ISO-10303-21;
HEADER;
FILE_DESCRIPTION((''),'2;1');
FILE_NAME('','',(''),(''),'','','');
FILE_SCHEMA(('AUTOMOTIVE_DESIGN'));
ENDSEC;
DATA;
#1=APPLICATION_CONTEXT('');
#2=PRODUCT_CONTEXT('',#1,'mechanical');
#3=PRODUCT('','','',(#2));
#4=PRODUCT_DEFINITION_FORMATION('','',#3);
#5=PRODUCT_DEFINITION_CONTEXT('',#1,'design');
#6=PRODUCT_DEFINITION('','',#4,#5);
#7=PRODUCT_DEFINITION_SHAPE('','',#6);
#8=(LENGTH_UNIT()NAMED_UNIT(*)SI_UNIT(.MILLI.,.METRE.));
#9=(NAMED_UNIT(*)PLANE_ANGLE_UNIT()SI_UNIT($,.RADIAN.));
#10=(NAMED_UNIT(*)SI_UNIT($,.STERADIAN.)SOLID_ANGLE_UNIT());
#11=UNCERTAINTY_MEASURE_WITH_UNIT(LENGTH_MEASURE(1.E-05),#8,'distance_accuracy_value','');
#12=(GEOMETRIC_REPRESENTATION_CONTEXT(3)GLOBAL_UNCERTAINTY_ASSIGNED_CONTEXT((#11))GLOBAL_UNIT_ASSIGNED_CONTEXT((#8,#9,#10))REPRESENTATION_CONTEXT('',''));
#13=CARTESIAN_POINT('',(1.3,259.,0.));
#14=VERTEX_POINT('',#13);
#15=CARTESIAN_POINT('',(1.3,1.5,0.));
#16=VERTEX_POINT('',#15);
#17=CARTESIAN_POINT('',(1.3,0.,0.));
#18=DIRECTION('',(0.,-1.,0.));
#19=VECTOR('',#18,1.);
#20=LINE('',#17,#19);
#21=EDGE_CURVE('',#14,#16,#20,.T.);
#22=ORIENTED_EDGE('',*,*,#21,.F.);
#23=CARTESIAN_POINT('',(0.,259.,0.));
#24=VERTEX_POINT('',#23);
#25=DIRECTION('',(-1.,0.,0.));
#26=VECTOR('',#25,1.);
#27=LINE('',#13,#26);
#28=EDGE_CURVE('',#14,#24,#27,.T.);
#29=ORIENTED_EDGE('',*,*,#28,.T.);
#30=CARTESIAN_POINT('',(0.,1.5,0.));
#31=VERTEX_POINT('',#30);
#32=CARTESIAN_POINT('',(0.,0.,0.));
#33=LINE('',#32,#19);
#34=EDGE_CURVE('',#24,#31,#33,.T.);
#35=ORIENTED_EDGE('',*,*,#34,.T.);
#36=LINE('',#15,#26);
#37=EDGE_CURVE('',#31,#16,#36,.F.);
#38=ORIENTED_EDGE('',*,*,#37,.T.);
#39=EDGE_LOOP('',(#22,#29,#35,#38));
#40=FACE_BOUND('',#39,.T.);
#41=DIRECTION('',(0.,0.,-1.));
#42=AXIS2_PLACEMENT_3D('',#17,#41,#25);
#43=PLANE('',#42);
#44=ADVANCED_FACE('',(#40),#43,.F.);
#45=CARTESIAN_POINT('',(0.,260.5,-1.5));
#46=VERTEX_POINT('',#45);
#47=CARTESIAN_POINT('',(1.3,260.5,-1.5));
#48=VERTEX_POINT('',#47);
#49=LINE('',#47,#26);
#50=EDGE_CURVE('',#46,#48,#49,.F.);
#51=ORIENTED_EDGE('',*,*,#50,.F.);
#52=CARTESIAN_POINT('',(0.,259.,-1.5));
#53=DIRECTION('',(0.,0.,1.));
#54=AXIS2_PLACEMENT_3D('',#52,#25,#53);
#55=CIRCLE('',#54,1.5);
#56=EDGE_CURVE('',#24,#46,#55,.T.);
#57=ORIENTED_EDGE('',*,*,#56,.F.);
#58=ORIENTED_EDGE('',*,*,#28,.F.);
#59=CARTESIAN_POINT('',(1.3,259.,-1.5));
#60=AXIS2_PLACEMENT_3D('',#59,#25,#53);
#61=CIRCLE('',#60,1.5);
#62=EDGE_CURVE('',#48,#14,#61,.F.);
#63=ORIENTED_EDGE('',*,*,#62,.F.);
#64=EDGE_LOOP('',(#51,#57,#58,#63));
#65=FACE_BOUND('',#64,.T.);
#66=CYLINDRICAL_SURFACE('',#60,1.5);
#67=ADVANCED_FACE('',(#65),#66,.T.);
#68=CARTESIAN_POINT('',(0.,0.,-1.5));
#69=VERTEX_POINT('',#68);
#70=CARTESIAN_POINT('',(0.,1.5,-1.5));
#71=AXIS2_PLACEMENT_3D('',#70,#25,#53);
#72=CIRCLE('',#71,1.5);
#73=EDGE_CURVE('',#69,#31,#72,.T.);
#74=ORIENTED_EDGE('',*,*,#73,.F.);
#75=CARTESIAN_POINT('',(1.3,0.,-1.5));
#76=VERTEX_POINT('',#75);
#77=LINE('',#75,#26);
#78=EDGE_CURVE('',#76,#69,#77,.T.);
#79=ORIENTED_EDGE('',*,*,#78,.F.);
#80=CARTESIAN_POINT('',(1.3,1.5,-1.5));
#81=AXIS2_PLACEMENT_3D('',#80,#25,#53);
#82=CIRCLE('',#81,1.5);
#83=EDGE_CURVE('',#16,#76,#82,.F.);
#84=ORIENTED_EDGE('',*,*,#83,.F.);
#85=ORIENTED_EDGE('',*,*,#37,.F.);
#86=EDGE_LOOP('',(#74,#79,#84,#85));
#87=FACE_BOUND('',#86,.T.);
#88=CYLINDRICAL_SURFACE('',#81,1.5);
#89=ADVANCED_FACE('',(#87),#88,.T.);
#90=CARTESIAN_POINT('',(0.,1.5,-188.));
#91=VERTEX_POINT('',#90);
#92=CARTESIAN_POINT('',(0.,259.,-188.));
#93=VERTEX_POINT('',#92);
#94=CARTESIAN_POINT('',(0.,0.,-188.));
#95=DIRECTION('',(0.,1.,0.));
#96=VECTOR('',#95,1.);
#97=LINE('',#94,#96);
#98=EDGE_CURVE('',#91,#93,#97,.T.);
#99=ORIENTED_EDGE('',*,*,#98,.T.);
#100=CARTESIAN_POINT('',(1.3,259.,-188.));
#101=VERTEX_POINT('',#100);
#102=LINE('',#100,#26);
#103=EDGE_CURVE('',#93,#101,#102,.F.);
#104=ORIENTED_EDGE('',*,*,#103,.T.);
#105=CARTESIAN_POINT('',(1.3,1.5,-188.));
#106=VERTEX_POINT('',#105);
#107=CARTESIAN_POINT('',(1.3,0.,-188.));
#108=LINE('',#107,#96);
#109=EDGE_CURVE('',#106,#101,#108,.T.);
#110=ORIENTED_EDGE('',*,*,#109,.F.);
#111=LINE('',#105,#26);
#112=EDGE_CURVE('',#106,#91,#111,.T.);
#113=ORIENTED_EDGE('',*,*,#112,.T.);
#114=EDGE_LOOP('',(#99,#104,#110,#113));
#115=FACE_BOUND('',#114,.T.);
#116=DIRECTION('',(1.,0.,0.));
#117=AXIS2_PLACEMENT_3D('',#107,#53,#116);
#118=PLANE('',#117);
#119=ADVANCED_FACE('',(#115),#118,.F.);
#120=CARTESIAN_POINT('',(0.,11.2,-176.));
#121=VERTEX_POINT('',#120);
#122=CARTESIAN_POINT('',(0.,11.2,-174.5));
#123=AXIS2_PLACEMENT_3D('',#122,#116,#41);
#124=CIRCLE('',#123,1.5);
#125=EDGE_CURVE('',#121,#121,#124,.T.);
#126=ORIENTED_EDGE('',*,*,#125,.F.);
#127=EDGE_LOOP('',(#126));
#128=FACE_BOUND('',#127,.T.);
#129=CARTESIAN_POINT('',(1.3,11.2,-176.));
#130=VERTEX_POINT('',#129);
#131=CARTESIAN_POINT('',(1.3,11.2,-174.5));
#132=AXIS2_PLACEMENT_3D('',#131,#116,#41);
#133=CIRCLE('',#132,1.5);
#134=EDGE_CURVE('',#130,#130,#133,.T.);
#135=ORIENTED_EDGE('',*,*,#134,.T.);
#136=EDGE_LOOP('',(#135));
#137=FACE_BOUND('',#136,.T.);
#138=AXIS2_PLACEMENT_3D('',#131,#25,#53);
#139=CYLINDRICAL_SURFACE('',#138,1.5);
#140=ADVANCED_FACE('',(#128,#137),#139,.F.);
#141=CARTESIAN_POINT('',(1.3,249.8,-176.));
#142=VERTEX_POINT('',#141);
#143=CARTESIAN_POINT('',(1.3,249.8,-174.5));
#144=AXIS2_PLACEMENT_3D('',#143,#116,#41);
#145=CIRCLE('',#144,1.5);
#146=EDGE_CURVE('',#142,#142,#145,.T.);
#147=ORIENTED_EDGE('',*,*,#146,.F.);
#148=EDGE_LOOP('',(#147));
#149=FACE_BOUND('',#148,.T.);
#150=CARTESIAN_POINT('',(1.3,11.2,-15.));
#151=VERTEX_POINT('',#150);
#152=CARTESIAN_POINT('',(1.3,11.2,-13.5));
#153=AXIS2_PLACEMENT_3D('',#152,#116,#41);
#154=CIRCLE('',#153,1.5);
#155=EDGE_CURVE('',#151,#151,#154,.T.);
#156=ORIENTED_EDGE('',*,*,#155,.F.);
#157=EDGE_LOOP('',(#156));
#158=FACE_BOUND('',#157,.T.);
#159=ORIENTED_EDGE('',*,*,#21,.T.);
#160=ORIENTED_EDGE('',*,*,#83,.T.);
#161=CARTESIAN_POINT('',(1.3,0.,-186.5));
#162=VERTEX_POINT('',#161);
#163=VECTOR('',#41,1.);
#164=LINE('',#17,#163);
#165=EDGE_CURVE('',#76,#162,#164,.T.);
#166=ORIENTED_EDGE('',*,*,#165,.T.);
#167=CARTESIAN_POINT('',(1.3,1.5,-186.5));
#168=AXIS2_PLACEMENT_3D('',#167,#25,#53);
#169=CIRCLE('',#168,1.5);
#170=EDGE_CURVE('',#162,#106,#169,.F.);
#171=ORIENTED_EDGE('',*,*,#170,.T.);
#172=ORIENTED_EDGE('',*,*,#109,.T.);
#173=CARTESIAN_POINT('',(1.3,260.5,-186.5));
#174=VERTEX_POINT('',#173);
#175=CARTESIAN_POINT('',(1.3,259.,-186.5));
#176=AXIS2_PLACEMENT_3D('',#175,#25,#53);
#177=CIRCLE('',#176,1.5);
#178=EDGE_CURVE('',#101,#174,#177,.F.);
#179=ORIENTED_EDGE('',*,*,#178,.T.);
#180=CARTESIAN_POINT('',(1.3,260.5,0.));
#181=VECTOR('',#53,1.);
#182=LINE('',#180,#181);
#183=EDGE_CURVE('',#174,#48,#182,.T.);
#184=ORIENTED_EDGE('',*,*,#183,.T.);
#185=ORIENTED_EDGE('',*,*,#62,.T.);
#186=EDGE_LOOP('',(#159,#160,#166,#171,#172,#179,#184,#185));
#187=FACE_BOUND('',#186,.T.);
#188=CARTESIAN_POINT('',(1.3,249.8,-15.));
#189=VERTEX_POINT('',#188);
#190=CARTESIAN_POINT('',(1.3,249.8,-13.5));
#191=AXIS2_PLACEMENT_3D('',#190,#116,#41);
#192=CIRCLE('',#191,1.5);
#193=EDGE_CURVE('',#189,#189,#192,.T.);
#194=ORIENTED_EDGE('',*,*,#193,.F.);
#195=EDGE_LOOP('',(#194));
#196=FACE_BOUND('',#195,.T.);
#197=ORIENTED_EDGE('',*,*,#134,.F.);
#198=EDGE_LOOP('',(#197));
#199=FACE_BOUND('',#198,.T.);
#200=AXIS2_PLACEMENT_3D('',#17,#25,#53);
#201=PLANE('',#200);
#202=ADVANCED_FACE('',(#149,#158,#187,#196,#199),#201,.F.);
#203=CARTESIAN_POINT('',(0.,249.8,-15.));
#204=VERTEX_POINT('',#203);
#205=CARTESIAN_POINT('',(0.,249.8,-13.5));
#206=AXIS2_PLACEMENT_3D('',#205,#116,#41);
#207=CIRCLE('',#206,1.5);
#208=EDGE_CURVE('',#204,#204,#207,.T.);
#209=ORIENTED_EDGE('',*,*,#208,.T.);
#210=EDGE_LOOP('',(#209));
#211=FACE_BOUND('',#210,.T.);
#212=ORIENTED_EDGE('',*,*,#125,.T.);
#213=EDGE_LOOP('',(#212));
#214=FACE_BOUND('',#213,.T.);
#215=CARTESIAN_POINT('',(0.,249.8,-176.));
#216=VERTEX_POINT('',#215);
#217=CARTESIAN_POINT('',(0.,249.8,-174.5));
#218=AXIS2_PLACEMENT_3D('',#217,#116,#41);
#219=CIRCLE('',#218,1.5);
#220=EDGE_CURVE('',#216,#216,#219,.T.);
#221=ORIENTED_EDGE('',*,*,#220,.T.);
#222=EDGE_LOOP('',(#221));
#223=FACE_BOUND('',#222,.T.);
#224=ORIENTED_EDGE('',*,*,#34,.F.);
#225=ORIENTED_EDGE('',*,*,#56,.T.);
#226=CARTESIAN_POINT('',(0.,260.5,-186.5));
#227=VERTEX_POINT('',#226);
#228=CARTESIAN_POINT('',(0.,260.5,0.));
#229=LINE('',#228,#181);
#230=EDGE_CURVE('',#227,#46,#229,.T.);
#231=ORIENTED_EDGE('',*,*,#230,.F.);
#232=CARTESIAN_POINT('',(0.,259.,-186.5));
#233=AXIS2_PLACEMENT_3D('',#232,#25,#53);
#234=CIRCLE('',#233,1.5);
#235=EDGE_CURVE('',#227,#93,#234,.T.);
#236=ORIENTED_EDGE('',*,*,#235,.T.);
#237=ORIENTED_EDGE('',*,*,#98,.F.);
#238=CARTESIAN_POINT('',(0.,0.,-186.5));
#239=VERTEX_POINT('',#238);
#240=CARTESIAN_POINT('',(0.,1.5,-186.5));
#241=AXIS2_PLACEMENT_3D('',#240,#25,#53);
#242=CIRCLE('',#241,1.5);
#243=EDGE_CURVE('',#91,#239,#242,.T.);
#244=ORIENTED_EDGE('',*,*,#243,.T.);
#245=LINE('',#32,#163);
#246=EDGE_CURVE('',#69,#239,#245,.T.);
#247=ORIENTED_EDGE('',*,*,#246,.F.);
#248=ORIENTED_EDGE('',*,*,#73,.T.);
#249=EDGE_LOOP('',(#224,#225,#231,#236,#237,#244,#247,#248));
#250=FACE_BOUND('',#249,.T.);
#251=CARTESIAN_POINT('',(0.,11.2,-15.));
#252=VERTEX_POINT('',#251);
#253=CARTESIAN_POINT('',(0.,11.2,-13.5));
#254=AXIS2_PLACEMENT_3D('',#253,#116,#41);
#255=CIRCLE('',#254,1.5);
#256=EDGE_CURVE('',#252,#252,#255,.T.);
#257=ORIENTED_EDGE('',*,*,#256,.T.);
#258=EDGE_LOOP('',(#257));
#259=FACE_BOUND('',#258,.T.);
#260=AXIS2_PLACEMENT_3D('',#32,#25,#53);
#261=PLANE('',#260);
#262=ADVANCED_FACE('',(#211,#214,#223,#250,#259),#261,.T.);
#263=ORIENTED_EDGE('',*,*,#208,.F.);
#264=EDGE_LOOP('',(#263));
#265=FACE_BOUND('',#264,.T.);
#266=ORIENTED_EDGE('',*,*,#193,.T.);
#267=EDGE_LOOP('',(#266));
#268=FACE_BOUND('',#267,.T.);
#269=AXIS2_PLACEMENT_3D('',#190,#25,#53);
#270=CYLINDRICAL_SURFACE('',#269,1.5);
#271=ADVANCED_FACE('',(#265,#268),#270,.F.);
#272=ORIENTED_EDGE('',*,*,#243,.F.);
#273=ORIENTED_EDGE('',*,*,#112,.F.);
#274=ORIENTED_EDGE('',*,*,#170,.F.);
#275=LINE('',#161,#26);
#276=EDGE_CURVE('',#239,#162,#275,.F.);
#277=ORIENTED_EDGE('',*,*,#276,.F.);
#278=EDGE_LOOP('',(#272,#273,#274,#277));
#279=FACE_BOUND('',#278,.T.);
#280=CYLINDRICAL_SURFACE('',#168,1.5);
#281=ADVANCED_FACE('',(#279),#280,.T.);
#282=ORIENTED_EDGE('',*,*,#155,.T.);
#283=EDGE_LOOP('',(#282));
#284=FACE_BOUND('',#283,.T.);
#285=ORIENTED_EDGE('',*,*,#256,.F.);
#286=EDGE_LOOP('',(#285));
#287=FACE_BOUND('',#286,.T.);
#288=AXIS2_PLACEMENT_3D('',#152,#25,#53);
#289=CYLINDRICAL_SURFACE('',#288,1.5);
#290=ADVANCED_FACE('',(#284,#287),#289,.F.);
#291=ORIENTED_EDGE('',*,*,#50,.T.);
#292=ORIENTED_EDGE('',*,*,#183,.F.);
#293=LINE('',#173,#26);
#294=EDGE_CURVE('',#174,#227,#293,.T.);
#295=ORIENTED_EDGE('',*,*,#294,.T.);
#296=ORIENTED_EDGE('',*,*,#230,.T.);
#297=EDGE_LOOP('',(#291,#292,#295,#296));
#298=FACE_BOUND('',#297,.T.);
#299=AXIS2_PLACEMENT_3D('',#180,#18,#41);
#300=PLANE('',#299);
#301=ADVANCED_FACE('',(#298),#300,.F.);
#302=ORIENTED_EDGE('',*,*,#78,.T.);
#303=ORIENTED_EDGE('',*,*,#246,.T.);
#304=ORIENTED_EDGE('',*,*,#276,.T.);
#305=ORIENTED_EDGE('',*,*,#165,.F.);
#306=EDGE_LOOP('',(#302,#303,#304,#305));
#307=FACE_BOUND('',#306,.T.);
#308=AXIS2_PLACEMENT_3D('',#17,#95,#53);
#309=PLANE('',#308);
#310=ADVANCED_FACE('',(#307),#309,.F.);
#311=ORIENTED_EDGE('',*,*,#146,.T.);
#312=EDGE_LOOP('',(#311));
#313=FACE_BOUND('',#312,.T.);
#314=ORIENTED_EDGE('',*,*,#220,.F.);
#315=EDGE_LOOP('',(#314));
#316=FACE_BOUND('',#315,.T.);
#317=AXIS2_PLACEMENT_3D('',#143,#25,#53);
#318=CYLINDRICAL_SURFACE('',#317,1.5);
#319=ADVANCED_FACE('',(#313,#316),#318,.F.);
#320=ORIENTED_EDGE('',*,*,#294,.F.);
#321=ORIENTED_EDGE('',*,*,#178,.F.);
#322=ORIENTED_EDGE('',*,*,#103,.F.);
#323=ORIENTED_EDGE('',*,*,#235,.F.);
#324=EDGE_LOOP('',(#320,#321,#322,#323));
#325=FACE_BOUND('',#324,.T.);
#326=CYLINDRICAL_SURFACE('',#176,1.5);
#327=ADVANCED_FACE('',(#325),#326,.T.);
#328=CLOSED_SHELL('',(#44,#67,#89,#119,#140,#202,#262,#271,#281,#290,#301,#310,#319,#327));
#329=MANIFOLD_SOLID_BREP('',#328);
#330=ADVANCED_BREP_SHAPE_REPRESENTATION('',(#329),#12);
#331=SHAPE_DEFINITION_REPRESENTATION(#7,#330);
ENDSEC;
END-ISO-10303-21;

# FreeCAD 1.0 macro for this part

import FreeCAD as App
import Part
import Sketcher

V = App.Vector
Q = App.Units.Quantity


def edges_at(feature, points):
    """Names of the edges that pass closest to the given points."""
    edges = feature.Shape.Edges
    near = lambda p: min(range(len(edges)), key=lambda i: edges[i].distToShape(Part.Vertex(*p))[0])
    return sorted({f"Edge{near(p) + 1}" for p in points})


def add_polygon(sketch, points):
    """Adds a closed chain of lines whose ends are joined by coincident constraints."""
    first, n = sketch.GeometryCount, len(points)
    for a, b in zip(points, points[1:] + points[:1]):
        sketch.addGeometry(Part.LineSegment(App.Vector(*a, 0), App.Vector(*b, 0)), False)
    for i in range(n):
        sketch.addConstraint(Sketcher.Constraint("Coincident", first + i, 2, first + (i + 1) % n, 1))

doc = App.newDocument("Part")
params = doc.addObject("Spreadsheet::Sheet", "Params")
for row, (alias, value) in enumerate([
    ("sketch1_diameter", "3 mm"),
    ("sketch1_height", "188 mm"),
    ("sketch1_width", "260.5 mm"),
    ("pad1_length", "1.3 mm"),
    ("fillet_radius", "1.5 mm"),
], start=1):
    params.set(f"A{row}", alias)
    params.set(f"B{row}", "=" + value)
    params.setAlias(f"B{row}", alias)

body = doc.addObject("PartDesign::Body", "Body")

# Sketch on YZ plane
sketch1 = doc.addObject("Sketcher::SketchObject", "Sketch")
body.addObject(sketch1)
sketch1.AttachmentSupport = (doc.YZ_Plane, [""])
sketch1.MapMode = "FlatFace"
add_polygon(sketch1, [(260.5, 0), (0, 0), (0, -188), (260.5, -188)])  # lines 0-3
sketch1.addGeometry(Part.Circle(V(11.2, -13.5, 0), V(0, 0, 1), 1.5), False)  # 4
sketch1.addGeometry(Part.Circle(V(11.2, -174.5, 0), V(0, 0, 1), 1.5), False)  # 5
sketch1.addGeometry(Part.Circle(V(249.8, -13.5, 0), V(0, 0, 1), 1.5), False)  # 6
sketch1.addGeometry(Part.Circle(V(249.8, -174.5, 0), V(0, 0, 1), 1.5), False)  # 7
sketch1.addConstraint([
    Sketcher.Constraint("Horizontal", 0),
    Sketcher.Constraint("Vertical", 1),
    Sketcher.Constraint("Horizontal", 2),
    Sketcher.Constraint("Vertical", 3),
    Sketcher.Constraint("Coincident", 0, 2, -1, 1),
    Sketcher.Constraint("Equal", 4, 5),
    Sketcher.Constraint("Equal", 5, 6),
    Sketcher.Constraint("Equal", 6, 7),
    Sketcher.Constraint("Horizontal", 4, 3, 6, 3),
    Sketcher.Constraint("Horizontal", 5, 3, 7, 3),
    Sketcher.Constraint("Vertical", 4, 3, 5, 3),
    Sketcher.Constraint("Vertical", 6, 3, 7, 3),
    Sketcher.Constraint("Diameter", 4, Q("3 mm")),
    Sketcher.Constraint("DistanceY", 1, 2, 1, 1, Q("188 mm")),
    Sketcher.Constraint("DistanceX", 0, 2, 0, 1, Q("260.5 mm")),
    Sketcher.Constraint("DistanceY", 5, 3, 4, 3, Q("161 mm")),
    Sketcher.Constraint("DistanceX", -1, 1, 4, 3, Q("11.2 mm")),
    Sketcher.Constraint("DistanceY", 4, 3, -1, 1, Q("13.5 mm")),
    Sketcher.Constraint("DistanceX", -1, 1, 6, 3, Q("249.8 mm")),
])
sketch1.setExpression("Constraints[16]", "Params.sketch1_diameter")
sketch1.setExpression("Constraints[17]", "Params.sketch1_height")
sketch1.setExpression("Constraints[18]", "Params.sketch1_width")
pad1 = doc.addObject("PartDesign::Pad", "Pad")
body.addObject(pad1)
pad1.Profile = sketch1
pad1.setExpression("Length", "Params.pad1_length")
doc.recompute()

fillet = doc.addObject("PartDesign::Fillet", "Fillet")
body.addObject(fillet)
fillet.Base = (pad1, edges_at(pad1, [
    (0.65, 260.5, 0),
    (0.65, 260.5, -188),
    (0.65, 0, -188),
    (0.65, 0, 0),
]))
fillet.setExpression("Radius", "Params.fillet_radius")

doc.recompute()
